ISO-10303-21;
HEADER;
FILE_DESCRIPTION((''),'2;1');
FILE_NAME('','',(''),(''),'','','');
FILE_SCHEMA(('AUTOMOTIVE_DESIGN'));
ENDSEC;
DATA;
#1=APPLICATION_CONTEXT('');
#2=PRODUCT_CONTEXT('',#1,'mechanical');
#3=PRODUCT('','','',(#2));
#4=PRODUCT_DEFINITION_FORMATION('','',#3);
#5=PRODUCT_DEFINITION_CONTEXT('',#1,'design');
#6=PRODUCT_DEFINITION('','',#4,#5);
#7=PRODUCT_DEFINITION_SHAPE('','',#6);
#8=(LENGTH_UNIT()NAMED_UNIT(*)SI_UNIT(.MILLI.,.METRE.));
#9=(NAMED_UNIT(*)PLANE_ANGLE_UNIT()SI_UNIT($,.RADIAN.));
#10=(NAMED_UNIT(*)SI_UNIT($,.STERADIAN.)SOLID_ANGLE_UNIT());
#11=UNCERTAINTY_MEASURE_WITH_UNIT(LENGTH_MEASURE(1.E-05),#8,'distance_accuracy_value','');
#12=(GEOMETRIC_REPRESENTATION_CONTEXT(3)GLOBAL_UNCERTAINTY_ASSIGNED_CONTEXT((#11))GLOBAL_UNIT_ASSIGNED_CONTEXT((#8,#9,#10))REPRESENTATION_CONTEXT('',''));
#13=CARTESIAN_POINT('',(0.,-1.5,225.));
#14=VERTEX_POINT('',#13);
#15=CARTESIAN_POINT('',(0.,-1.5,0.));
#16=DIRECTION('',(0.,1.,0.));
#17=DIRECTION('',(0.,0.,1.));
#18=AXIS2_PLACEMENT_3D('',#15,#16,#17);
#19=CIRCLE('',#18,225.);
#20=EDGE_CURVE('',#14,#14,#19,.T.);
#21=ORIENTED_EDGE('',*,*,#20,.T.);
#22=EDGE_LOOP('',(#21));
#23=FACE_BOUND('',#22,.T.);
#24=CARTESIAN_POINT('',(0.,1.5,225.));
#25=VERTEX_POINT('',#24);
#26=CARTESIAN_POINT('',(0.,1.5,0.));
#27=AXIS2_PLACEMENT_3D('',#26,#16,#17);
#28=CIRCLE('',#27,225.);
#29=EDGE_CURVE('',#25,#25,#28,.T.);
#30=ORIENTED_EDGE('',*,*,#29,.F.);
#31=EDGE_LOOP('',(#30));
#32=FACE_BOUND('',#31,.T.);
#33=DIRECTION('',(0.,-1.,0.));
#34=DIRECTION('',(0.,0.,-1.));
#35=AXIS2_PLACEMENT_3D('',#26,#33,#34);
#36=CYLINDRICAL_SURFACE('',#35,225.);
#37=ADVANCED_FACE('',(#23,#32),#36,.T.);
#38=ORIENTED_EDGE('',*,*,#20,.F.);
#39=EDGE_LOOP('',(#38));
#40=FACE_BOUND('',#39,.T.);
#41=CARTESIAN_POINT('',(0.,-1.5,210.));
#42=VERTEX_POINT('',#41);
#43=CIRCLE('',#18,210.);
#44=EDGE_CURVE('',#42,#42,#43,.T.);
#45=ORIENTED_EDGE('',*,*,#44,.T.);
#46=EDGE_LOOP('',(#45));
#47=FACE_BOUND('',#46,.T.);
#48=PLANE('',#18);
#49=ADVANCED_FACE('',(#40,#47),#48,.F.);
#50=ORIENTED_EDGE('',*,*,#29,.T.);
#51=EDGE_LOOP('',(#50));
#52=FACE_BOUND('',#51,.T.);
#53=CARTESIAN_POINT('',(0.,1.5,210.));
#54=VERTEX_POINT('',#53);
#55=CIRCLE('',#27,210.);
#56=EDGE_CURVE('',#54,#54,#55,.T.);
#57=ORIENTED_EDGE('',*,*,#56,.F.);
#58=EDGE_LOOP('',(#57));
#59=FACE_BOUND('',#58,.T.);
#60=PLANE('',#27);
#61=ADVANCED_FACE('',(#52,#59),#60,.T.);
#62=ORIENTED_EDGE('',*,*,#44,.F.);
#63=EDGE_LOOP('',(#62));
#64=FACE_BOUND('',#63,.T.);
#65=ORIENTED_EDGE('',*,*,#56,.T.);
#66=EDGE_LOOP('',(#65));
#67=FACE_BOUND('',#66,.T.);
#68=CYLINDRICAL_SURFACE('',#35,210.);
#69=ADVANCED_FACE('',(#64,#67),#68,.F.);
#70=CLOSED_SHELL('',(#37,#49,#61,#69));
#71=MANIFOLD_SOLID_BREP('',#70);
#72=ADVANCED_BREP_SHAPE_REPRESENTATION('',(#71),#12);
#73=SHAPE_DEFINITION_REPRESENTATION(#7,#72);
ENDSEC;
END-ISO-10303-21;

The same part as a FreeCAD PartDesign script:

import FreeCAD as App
import Part
import Sketcher

doc = App.newDocument("Part")
body = doc.addObject("PartDesign::Body", "Body")

# Sketch on XZ plane
sketch1 = body.newObject("Sketcher::SketchObject", "Sketch")
sketch1.AttachmentSupport = (doc.getObject("XZ_Plane"), [""])
sketch1.MapMode = "FlatFace"
sketch1.addGeometry([
    Part.Circle(App.Vector(0, 0, 0), App.Vector(0, 0, 1), 225),
    Part.Circle(App.Vector(0, 0, 0), App.Vector(0, 0, 1), 210),
], False)
sketch1.addConstraint([
    Sketcher.Constraint("Coincident", 0, 3, -1, 1),
    Sketcher.Constraint("Coincident", 1, 3, -1, 1),
    Sketcher.Constraint("Diameter", 0, 450.0),
    Sketcher.Constraint("Diameter", 1, 420.0),
])
pad1 = body.newObject("PartDesign::Pad", "Pad")
pad1.Profile = sketch1
pad1.Length = 3
pad1.Midplane = True

doc.recompute()
